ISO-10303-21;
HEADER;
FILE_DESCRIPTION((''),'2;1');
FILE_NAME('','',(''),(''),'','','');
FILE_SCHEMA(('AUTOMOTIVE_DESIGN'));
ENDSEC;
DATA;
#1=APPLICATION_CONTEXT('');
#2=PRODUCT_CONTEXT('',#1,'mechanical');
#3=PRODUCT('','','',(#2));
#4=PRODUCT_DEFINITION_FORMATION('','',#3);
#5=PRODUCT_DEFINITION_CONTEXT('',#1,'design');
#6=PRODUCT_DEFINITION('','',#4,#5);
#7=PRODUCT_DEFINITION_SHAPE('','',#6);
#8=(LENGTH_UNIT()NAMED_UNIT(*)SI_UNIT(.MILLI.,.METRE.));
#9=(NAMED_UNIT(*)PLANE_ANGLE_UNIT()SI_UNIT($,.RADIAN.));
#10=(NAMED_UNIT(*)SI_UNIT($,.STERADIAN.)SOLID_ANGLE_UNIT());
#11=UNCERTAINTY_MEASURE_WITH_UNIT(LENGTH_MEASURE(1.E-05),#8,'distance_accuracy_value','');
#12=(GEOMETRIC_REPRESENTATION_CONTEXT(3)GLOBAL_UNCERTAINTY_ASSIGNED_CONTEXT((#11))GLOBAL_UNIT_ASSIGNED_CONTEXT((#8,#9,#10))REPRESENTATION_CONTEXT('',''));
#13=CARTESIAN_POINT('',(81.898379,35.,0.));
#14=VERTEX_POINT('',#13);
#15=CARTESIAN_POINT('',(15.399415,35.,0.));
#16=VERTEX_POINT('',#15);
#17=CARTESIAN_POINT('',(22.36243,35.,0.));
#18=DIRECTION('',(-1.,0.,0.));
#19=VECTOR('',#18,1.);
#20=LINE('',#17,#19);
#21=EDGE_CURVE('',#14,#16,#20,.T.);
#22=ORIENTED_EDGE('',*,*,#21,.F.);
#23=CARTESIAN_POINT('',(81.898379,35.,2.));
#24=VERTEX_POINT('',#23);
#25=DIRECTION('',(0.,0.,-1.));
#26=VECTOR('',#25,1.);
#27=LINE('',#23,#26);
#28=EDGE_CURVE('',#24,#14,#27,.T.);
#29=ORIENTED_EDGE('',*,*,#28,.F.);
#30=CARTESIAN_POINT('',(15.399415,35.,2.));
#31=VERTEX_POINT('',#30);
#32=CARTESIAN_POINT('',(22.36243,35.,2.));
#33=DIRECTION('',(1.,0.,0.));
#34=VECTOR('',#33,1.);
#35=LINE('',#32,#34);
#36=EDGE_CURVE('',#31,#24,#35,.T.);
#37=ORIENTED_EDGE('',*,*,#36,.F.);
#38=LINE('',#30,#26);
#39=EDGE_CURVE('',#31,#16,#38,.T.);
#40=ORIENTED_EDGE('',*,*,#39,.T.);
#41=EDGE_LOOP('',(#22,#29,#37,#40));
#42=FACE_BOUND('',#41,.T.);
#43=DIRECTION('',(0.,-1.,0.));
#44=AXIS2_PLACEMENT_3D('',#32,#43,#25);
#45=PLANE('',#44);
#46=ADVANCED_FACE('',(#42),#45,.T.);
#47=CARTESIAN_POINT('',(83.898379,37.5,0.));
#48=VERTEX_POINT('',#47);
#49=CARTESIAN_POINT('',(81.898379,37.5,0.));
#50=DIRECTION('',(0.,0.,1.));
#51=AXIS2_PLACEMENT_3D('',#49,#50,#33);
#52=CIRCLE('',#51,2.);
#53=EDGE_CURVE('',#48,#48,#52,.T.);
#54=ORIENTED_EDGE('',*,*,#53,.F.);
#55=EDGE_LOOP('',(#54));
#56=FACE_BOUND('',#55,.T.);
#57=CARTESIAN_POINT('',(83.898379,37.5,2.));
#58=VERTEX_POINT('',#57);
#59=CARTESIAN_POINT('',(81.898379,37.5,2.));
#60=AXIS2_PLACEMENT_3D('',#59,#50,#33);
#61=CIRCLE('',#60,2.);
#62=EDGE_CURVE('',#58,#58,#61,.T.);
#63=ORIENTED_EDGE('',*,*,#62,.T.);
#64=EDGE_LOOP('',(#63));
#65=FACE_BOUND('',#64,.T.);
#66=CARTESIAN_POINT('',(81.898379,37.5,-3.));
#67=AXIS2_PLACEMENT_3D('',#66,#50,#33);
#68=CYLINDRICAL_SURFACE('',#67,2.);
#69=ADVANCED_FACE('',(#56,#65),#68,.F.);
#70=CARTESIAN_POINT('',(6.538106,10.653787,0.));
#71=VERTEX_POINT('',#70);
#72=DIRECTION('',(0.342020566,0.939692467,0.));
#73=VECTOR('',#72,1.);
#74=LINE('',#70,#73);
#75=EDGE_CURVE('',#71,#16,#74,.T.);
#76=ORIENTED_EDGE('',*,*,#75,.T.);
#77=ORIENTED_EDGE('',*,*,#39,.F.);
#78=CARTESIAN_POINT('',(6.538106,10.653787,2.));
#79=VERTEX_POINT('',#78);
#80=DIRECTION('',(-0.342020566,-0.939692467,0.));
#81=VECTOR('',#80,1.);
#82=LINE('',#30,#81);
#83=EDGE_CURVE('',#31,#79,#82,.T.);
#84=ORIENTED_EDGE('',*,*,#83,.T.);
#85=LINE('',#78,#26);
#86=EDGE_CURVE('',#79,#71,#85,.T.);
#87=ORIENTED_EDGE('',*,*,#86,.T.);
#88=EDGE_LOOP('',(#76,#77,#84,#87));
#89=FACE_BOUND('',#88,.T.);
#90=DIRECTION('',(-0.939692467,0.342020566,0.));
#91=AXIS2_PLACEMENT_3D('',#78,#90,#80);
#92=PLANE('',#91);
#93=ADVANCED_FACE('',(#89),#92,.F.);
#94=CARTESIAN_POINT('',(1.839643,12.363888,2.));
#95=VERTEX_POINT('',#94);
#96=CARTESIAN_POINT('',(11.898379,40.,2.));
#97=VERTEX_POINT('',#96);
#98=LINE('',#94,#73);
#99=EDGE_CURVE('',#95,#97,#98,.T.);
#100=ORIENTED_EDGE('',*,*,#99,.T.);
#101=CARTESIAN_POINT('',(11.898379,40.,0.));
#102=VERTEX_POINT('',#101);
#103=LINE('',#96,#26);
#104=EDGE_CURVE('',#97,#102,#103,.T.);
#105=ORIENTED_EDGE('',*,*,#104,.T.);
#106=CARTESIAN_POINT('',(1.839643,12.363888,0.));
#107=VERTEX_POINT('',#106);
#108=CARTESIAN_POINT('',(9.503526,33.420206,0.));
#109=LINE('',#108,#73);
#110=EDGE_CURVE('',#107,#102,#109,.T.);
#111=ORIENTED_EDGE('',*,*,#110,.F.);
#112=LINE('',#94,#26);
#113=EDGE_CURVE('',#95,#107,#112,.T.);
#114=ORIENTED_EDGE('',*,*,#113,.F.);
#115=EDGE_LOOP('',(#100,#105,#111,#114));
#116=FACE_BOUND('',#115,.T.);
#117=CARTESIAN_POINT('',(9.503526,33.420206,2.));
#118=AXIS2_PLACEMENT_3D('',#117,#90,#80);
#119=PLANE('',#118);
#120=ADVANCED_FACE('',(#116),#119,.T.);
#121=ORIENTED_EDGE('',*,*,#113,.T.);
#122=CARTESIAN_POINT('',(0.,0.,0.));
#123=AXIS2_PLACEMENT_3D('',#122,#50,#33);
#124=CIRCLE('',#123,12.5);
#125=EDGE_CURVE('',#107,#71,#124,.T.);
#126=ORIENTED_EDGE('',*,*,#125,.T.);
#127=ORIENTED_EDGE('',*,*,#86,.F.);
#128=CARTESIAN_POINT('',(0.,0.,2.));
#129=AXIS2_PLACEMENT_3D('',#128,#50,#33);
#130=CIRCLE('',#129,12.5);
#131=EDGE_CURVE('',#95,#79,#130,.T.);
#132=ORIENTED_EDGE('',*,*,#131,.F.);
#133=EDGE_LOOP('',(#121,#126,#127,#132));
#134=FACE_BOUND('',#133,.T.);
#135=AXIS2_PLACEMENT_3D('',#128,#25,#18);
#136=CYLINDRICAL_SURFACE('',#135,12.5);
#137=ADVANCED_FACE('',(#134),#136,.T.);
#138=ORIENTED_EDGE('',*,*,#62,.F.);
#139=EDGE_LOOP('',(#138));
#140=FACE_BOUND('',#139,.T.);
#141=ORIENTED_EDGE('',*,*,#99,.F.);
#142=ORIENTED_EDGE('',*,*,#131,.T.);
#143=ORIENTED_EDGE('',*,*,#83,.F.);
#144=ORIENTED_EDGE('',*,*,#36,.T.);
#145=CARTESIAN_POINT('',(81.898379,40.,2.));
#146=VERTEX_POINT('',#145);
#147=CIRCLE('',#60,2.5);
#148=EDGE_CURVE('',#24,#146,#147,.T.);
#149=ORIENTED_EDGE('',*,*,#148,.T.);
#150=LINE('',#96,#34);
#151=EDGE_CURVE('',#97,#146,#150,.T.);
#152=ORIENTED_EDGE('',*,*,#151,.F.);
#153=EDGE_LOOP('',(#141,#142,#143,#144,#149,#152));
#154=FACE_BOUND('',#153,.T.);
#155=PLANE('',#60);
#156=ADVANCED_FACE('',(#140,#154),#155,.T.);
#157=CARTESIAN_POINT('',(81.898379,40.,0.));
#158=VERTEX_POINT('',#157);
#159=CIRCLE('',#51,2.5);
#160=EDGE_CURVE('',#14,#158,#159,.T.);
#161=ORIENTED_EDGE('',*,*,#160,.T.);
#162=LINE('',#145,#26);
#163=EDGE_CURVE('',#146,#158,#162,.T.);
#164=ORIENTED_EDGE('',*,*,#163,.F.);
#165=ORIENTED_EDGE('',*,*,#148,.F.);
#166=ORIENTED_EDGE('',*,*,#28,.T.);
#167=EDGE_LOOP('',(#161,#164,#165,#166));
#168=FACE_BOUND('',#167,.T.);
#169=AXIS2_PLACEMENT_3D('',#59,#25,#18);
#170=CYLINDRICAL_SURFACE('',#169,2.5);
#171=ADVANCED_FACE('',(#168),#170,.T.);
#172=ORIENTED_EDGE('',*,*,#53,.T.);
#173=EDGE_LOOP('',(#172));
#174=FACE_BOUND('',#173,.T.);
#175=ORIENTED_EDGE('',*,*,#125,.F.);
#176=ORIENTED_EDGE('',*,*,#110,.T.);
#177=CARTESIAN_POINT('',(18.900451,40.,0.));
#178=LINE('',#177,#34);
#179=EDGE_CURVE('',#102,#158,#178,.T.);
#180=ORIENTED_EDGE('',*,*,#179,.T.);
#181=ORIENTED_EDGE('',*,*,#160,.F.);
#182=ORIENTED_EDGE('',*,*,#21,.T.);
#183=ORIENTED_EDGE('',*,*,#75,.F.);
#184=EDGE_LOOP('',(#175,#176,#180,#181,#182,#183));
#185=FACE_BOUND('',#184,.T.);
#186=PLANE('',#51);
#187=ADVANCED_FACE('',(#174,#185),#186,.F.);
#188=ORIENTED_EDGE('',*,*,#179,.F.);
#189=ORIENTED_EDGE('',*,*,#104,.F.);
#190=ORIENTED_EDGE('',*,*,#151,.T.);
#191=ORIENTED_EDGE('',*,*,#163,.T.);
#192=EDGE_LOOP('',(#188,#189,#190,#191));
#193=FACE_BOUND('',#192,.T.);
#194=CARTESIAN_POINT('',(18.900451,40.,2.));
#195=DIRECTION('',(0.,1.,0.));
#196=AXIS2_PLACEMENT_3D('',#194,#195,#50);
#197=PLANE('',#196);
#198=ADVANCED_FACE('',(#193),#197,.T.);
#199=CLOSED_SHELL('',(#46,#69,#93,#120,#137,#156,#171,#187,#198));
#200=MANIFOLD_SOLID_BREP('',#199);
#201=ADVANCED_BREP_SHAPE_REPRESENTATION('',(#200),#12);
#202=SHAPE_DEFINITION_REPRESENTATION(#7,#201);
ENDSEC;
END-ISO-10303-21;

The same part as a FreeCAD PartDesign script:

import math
import FreeCAD as App
import Part
import Sketcher
from FreeCAD import Vector
Q = App.Units.Quantity

doc = App.newDocument("Part")
body = doc.addObject("PartDesign::Body", "Body")

sketch1 = body.newObject("Sketcher::SketchObject", "Sketch")
sketch1.AttachmentSupport = (doc.getObject("XY_Plane"), [""])
sketch1.MapMode = "FlatFace"
sketch1.addGeometry([
    Part.LineSegment(Vector(11.9, 40, 0), Vector(9.5, 33.4, 0)),
    Part.LineSegment(Vector(9.5, 33.4, 0), Vector(1.8, 12.4, 0)),
    Part.ArcOfCircle(Part.Circle(Vector(0, 0, 0), Vector(0, 0, 1), 12.5), math.radians(82), math.radians(418)),
    Part.LineSegment(Vector(6.5, 10.7, 0), Vector(13.3, 29.2, 0)),
    Part.LineSegment(Vector(13.3, 29.2, 0), Vector(15.4, 35, 0)),
    Part.LineSegment(Vector(15.4, 35, 0), Vector(81.9, 35, 0)),
    Part.ArcOfCircle(Part.Circle(Vector(81.9, 37.5, 0), Vector(0, 0, 1), 2.5), math.radians(-90), math.radians(90)),
    Part.LineSegment(Vector(81.9, 40, 0), Vector(11.9, 40, 0)),
], False)
sketch1.addConstraint([
    Sketcher.Constraint("Coincident", 0, 2, 1, 1),
    Sketcher.Constraint("Coincident", 1, 2, 2, 1),
    Sketcher.Constraint("Coincident", 2, 2, 3, 1),
    Sketcher.Constraint("Coincident", 3, 2, 4, 1),
    Sketcher.Constraint("Coincident", 4, 2, 5, 1),
    Sketcher.Constraint("Tangent", 5, 2, 6, 1),
    Sketcher.Constraint("Tangent", 6, 2, 7, 1),
    Sketcher.Constraint("Coincident", 7, 2, 0, 1),
    Sketcher.Constraint("Horizontal", 5),
    Sketcher.Constraint("Horizontal", 7),
    Sketcher.Constraint("Coincident", 2, 3, -1, 1),
    Sketcher.Constraint("Parallel", 0, 1),
    Sketcher.Constraint("Parallel", 1, 3),
    Sketcher.Constraint("Parallel", 3, 4),
    Sketcher.Constraint("Radius", 2, Q("12.5 mm")),
    Sketcher.Constraint("Radius", 6, Q("2.5 mm")),
    Sketcher.Constraint("DistanceX", 7, 2, 7, 1, Q("70 mm")),
    Sketcher.Constraint("DistanceY", -1, 1, 4, 2, Q("35 mm")),
    Sketcher.Constraint("DistanceY", 2, 2, 1, 2, Q("1.710101 mm")),
    Sketcher.Constraint("Distance", 1, Q("22.407669 mm")),
    Sketcher.Constraint("Distance", 4, Q("6.159459 mm")),
    Sketcher.Constraint("DistanceX", 5, 1, 5, 2, Q("66.498964 mm")),
    Sketcher.Constraint("DistanceX", -1, 1, 6, 3, Q("81.898379 mm")),
])
pad1 = body.newObject("PartDesign::Pad", "Pad")
pad1.Profile = sketch1
pad1.Length = 2

sketch2 = body.newObject("Sketcher::SketchObject", "Sketch001")
sketch2.AttachmentSupport = (doc.getObject("XY_Plane"), [""])
sketch2.MapMode = "FlatFace"
sketch2.AttachmentOffset = App.Placement(Vector(0, 0, 2), App.Rotation())
sketch2.addGeometry(Part.Circle(Vector(81.9, 37.5, 0), Vector(0, 0, 1), 2), False)
sketch2.addConstraint([
    Sketcher.Constraint("Diameter", 0, Q("4 mm")),
    Sketcher.Constraint("DistanceY", -1, 1, 0, 3, Q("37.5 mm")),
    Sketcher.Constraint("DistanceX", -1, 1, 0, 3, Q("81.898379 mm")),
])
pocket1 = body.newObject("PartDesign::Pocket", "Pocket")
pocket1.Profile = sketch2
pocket1.Length = 5

doc.recompute()
